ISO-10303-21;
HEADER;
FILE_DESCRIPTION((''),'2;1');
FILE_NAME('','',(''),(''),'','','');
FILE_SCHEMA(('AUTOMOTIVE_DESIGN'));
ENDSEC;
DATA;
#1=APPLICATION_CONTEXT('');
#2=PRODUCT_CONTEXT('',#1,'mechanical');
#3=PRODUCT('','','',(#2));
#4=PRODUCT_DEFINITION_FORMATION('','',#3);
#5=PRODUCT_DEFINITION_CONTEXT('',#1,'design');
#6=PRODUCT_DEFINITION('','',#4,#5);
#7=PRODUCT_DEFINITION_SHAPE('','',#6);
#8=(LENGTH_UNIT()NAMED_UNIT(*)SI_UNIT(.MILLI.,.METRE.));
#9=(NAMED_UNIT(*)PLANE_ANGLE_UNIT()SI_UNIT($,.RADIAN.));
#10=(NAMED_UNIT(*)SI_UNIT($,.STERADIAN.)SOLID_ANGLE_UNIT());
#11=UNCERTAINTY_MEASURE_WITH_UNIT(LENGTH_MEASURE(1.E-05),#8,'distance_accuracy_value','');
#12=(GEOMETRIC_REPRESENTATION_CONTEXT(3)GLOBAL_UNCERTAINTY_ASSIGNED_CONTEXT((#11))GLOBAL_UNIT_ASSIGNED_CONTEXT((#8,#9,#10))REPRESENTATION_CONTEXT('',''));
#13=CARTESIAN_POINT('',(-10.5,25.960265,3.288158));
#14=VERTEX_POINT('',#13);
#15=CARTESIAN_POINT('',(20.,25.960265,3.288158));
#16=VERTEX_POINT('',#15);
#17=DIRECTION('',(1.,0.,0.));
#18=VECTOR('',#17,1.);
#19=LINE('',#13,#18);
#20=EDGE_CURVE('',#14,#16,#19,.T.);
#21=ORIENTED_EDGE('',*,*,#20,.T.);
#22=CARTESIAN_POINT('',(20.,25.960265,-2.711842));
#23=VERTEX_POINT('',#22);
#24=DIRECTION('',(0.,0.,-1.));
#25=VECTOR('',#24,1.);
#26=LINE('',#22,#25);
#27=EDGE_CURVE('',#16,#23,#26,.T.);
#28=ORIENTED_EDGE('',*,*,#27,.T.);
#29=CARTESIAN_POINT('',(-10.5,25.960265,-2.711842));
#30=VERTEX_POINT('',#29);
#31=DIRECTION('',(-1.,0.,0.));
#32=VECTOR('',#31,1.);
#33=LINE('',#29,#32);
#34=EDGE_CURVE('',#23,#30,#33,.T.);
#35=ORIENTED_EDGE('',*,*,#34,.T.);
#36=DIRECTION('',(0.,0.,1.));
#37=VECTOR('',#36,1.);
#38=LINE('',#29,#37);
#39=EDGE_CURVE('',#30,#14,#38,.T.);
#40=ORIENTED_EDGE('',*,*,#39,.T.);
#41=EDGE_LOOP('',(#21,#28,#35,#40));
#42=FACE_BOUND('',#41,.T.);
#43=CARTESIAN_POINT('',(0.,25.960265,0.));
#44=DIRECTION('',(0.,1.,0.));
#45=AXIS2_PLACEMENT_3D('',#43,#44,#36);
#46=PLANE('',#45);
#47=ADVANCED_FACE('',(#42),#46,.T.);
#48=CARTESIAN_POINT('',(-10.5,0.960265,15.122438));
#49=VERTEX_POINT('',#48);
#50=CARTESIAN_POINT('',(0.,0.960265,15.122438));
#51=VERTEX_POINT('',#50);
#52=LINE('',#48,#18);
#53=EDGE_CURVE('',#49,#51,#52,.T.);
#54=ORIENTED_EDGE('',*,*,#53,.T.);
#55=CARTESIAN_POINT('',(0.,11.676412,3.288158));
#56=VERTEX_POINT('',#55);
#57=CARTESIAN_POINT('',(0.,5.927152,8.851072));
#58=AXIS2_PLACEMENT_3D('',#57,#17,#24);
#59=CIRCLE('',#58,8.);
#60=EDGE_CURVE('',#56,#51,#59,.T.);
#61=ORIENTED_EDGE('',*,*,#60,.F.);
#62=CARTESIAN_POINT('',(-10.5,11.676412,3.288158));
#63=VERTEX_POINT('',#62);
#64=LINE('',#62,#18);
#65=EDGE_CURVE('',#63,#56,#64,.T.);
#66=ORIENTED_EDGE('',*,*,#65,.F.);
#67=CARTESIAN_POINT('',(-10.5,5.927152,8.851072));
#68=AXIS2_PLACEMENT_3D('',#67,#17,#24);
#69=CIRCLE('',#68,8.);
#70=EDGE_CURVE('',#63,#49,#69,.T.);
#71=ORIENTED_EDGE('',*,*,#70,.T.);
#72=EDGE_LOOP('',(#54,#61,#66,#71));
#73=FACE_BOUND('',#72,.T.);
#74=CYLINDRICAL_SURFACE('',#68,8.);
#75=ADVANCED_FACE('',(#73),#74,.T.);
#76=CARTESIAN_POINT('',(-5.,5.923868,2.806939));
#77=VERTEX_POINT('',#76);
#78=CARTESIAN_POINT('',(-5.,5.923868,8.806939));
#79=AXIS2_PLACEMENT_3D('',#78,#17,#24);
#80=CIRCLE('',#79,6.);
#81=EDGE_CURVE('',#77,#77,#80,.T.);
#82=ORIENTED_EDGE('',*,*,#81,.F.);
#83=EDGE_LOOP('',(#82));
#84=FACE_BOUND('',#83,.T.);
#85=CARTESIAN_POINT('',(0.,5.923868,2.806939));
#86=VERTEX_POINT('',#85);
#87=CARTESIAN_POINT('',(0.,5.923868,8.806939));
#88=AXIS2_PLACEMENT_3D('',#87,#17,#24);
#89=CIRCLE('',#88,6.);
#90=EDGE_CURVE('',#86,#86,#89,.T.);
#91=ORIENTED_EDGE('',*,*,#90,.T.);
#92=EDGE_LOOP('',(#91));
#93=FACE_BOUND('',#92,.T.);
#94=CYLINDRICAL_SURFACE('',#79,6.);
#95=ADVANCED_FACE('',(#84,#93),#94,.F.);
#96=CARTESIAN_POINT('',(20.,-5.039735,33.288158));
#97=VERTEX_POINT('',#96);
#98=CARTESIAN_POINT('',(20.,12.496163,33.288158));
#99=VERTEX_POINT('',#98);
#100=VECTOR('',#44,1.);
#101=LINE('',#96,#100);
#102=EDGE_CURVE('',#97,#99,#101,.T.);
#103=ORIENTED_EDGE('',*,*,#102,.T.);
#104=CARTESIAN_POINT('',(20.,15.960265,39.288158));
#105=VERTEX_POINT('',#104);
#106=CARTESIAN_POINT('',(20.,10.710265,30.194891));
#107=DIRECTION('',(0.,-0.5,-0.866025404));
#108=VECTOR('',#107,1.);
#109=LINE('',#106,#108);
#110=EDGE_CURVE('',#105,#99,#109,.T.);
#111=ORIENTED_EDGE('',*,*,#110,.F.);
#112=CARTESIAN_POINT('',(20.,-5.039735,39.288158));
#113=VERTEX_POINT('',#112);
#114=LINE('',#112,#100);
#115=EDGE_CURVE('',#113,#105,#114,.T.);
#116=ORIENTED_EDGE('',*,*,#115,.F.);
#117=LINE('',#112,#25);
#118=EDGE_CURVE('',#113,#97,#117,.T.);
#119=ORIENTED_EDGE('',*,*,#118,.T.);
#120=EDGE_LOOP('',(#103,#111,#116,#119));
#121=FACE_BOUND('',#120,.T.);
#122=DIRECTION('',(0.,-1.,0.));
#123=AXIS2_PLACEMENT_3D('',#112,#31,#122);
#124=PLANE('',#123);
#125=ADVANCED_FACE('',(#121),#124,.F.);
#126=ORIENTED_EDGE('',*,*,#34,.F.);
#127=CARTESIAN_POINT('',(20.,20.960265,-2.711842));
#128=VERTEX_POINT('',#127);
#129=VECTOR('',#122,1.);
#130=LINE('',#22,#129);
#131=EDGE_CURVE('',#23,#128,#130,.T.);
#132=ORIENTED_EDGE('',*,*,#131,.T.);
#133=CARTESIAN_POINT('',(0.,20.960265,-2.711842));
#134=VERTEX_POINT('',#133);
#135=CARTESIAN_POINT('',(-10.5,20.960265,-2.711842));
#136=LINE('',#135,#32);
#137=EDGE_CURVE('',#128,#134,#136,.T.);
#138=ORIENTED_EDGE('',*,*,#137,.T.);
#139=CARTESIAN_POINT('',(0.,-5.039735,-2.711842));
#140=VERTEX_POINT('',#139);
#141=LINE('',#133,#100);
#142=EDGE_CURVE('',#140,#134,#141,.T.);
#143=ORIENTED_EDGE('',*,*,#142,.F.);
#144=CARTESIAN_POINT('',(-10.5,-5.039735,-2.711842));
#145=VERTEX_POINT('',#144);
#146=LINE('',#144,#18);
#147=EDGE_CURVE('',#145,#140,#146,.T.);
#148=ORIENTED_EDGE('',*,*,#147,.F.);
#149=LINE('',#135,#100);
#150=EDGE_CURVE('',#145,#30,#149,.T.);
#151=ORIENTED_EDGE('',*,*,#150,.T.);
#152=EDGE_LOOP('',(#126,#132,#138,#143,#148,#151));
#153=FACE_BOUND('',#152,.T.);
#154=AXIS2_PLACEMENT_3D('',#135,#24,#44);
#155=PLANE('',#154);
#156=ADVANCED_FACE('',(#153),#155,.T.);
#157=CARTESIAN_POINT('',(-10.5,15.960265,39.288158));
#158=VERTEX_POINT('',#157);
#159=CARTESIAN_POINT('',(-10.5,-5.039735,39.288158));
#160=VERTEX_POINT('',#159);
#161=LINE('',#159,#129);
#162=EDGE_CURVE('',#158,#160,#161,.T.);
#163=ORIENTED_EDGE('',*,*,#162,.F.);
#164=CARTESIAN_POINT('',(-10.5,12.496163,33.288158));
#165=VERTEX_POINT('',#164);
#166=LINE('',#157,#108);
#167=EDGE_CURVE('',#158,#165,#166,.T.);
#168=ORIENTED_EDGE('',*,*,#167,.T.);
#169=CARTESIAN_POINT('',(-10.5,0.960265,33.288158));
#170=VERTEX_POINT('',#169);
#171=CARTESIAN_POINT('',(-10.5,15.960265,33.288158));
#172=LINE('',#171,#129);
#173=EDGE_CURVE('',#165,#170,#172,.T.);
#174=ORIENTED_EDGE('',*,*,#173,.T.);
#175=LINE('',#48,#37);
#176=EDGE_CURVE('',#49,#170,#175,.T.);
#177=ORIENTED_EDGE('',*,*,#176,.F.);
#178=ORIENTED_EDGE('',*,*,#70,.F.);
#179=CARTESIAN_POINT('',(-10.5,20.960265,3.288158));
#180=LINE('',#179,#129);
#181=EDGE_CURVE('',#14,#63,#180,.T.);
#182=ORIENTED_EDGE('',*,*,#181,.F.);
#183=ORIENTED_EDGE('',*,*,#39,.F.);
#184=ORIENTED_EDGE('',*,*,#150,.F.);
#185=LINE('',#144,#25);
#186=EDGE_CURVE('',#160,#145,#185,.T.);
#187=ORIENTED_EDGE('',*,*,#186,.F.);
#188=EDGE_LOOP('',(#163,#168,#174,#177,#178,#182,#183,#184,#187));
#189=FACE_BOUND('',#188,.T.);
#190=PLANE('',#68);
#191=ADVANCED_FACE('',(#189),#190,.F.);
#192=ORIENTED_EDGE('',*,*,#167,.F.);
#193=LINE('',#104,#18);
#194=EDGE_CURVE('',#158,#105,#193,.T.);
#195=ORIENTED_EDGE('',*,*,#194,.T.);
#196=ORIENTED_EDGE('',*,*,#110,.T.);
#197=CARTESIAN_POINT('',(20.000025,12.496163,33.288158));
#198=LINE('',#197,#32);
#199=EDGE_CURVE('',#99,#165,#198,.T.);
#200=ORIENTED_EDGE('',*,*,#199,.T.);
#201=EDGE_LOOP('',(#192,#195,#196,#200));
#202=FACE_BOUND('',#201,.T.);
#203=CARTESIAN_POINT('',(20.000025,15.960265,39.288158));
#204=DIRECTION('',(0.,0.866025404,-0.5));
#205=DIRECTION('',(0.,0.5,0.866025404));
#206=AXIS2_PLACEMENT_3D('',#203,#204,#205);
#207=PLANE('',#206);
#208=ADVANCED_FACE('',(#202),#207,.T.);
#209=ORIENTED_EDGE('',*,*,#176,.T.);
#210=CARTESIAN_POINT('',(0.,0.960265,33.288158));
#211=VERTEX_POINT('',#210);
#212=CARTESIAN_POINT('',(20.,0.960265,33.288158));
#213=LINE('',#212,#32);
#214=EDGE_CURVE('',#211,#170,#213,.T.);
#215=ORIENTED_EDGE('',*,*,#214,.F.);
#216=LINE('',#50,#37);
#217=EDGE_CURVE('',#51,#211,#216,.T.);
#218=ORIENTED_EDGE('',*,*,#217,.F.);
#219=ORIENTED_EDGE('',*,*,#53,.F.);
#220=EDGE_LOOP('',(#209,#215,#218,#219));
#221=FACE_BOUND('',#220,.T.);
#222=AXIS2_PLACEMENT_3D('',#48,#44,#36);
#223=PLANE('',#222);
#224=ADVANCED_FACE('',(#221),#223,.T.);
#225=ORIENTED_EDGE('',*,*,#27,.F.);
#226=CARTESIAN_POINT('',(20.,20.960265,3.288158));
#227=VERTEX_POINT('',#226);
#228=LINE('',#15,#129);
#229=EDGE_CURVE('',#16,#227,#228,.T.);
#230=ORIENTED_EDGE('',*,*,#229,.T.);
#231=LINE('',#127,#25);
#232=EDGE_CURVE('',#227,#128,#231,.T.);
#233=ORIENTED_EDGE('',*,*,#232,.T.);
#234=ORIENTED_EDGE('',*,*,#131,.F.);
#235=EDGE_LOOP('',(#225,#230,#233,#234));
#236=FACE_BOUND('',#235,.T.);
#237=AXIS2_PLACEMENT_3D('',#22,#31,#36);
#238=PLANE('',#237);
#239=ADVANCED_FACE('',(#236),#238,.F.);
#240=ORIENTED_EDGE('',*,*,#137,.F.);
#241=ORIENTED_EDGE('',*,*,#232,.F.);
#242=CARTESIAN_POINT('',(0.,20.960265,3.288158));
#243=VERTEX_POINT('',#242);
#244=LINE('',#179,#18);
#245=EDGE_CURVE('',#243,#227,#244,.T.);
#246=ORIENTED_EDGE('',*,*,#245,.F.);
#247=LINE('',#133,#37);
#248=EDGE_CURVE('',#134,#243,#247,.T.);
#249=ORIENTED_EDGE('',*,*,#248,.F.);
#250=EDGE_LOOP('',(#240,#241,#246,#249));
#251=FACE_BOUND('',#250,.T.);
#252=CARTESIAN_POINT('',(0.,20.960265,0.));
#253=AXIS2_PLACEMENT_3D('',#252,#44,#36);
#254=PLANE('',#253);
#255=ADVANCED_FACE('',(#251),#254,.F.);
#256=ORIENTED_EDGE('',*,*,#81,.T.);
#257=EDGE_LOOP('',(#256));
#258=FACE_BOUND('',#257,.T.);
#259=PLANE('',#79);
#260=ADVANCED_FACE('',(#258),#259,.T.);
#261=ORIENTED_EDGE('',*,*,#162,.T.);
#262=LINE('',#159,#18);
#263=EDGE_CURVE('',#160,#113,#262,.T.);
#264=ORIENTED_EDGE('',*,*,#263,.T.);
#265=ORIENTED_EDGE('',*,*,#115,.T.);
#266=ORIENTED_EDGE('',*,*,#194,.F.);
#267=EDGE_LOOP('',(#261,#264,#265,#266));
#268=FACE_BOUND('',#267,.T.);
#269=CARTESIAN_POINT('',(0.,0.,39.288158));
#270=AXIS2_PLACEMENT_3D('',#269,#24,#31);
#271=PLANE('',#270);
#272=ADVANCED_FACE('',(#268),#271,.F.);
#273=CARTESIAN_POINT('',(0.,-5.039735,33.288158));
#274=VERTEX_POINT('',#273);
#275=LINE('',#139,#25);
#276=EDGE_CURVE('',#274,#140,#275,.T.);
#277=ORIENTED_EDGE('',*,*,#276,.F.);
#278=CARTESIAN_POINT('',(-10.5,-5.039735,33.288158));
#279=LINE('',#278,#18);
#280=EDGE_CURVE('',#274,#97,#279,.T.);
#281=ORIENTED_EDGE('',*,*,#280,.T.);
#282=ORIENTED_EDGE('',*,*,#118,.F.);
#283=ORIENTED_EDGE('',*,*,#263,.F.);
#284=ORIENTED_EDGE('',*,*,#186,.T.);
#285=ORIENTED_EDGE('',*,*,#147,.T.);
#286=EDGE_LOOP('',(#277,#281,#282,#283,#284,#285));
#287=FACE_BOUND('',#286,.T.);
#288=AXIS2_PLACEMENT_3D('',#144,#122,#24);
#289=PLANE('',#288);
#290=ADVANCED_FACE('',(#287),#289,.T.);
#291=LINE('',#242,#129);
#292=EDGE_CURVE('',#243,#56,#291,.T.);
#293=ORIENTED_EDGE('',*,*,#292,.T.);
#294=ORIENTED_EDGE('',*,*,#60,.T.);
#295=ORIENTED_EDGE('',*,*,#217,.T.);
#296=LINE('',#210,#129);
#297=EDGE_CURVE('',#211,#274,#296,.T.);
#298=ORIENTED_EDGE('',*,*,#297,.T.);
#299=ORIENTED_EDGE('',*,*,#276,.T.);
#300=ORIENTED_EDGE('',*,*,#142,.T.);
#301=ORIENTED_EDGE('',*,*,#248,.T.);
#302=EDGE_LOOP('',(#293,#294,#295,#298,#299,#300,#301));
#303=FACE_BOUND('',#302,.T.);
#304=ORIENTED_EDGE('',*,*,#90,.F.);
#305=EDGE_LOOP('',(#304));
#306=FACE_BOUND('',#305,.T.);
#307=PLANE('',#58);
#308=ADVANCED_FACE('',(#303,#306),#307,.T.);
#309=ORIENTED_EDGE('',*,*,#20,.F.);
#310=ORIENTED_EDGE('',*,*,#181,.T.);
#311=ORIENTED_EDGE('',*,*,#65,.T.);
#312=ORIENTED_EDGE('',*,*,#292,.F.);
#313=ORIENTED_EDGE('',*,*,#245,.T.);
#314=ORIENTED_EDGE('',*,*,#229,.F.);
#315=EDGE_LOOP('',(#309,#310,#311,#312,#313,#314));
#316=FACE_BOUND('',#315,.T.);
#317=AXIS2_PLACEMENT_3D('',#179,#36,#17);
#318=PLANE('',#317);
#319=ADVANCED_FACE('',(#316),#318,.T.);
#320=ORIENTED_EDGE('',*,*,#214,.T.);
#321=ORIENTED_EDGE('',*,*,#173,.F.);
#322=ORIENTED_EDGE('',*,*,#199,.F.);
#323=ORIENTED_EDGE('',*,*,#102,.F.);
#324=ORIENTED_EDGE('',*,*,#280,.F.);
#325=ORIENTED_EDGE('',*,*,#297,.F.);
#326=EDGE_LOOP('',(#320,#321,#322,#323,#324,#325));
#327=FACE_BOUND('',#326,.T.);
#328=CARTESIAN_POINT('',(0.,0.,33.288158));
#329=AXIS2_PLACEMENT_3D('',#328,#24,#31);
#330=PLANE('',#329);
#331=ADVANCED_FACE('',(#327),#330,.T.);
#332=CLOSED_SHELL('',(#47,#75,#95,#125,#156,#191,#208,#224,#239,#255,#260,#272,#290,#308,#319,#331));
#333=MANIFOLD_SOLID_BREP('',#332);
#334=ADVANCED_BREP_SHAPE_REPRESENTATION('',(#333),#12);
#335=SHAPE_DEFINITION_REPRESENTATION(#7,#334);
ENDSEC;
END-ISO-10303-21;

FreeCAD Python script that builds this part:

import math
import FreeCAD as App
import Part
import Sketcher

V = App.Vector
Q = App.Units.Quantity


def add_polygon(sketch, points):
    """Adds a closed chain of lines whose ends are joined by coincident constraints."""
    first, n = sketch.GeometryCount, len(points)
    for a, b in zip(points, points[1:] + points[:1]):
        sketch.addGeometry(Part.LineSegment(App.Vector(*a, 0), App.Vector(*b, 0)), False)
    for i in range(n):
        sketch.addConstraint(Sketcher.Constraint("Coincident", first + i, 2, first + (i + 1) % n, 1))

doc = App.newDocument("Part")
body = doc.addObject("PartDesign::Body", "Body")

# Sketch on YZ plane
sketch1 = body.newObject("Sketcher::SketchObject", "Sketch")
sketch1.AttachmentSupport = (doc.getObject("YZ_Plane"), [""])
sketch1.MapMode = "FlatFace"
sketch1.addGeometry(Part.LineSegment(V(21, -3, 0), V(21, 3, 0)), False)
sketch1.addGeometry(Part.LineSegment(V(21, 3, 0), V(12, 3, 0)), False)
sketch1.addGeometry(Part.ArcOfCircle(Part.Circle(V(6, 9, 0), V(0, 0, 1), 8), math.radians(-44), math.radians(128)), False)
sketch1.addGeometry(Part.LineSegment(V(1, 15, 0), V(1, 33, 0)), False)
sketch1.addGeometry(Part.LineSegment(V(1, 33, 0), V(-5, 33, 0)), False)
sketch1.addGeometry(Part.LineSegment(V(-5, 33, 0), V(-5, -3, 0)), False)
sketch1.addGeometry(Part.LineSegment(V(-5, -3, 0), V(21, -3, 0)), False)
sketch1.addConstraint(Sketcher.Constraint("Coincident", 0, 2, 1, 1))
sketch1.addConstraint(Sketcher.Constraint("Coincident", 1, 2, 2, 1))
sketch1.addConstraint(Sketcher.Constraint("Coincident", 2, 2, 3, 1))
sketch1.addConstraint(Sketcher.Constraint("Coincident", 3, 2, 4, 1))
sketch1.addConstraint(Sketcher.Constraint("Coincident", 4, 2, 5, 1))
sketch1.addConstraint(Sketcher.Constraint("Coincident", 5, 2, 6, 1))
sketch1.addConstraint(Sketcher.Constraint("Coincident", 6, 2, 0, 1))
sketch1.addConstraint(Sketcher.Constraint("Vertical", 0))
sketch1.addConstraint(Sketcher.Constraint("Horizontal", 1))
sketch1.addConstraint(Sketcher.Constraint("Vertical", 3))
sketch1.addConstraint(Sketcher.Constraint("Horizontal", 4))
sketch1.addConstraint(Sketcher.Constraint("Vertical", 5))
sketch1.addConstraint(Sketcher.Constraint("Horizontal", 6))
sketch1.addConstraint(Sketcher.Constraint("Equal", 4, 0))
sketch1.addConstraint(Sketcher.Constraint("Radius", 2, 8.0))
sketch1.addConstraint(Sketcher.Constraint("DistanceX", 4, 2, 4, 1, 6.0))
sketch1.addConstraint(Sketcher.Constraint("DistanceX", 6, 1, 6, 2, 26.0))
sketch1.addConstraint(Sketcher.Constraint("DistanceY", 5, 2, 5, 1, 36.0))
sketch1.addConstraint(Sketcher.Constraint("DistanceY", 3, 1, 3, 2, 18.16572))
sketch1.addConstraint(Sketcher.Constraint("DistanceX", 1, 2, 1, 1, 9.283853))
sketch1.addConstraint(Sketcher.Constraint("DistanceY", -1, 1, 0, 2, 3.288158))
sketch1.addConstraint(Sketcher.Constraint("DistanceX", -1, 1, 2, 3, 5.927152))
pad1 = body.newObject("PartDesign::Pad", "Pad")
pad1.Profile = sketch1
pad1.Length = 10.5
pad1.Reversed = True

# Sketch on XZ plane
sketch2 = body.newObject("Sketcher::SketchObject", "Sketch001")
sketch2.AttachmentSupport = (doc.getObject("XZ_Plane"), [""])
sketch2.MapMode = "FlatFace"
sketch2.AttachmentOffset = App.Placement(V(0, 0, -20.960265), App.Rotation())
add_polygon(sketch2, [(-10, -3), (-10, 3), (20, 3), (20, -3)])  # lines 0-3
sketch2.addConstraint(Sketcher.Constraint("Vertical", 0))
sketch2.addConstraint(Sketcher.Constraint("Horizontal", 1))
sketch2.addConstraint(Sketcher.Constraint("Vertical", 2))
sketch2.addConstraint(Sketcher.Constraint("Horizontal", 3))
sketch2.addConstraint(Sketcher.Constraint("DistanceY", 0, 1, 0, 2, 6.0))
sketch2.addConstraint(Sketcher.Constraint("DistanceX", 1, 1, 1, 2, 30.5))
sketch2.addConstraint(Sketcher.Constraint("DistanceX", -1, 1, 1, 2, 20.0))
sketch2.addConstraint(Sketcher.Constraint("DistanceY", -1, 1, 0, 2, 3.288158))
pad2 = body.newObject("PartDesign::Pad", "Pad001")
pad2.Profile = sketch2
pad2.Length = 5
pad2.Reversed = True

# Sketch on XY plane
sketch3 = body.newObject("Sketcher::SketchObject", "Sketch002")
sketch3.AttachmentSupport = (doc.getObject("XY_Plane"), [""])
sketch3.MapMode = "FlatFace"
sketch3.AttachmentOffset = App.Placement(V(0, 0, 33.288158), App.Rotation())
add_polygon(sketch3, [(-10, 1), (-10, -5), (20, -5), (20, 1)])  # lines 0-3
sketch3.addConstraint(Sketcher.Constraint("Vertical", 0))
sketch3.addConstraint(Sketcher.Constraint("Horizontal", 1))
sketch3.addConstraint(Sketcher.Constraint("Vertical", 2))
sketch3.addConstraint(Sketcher.Constraint("Horizontal", 3))
sketch3.addConstraint(Sketcher.Constraint("DistanceY", 0, 2, 0, 1, 6.0))
sketch3.addConstraint(Sketcher.Constraint("DistanceX", 1, 1, 1, 2, 30.5))
sketch3.addConstraint(Sketcher.Constraint("DistanceX", -1, 1, 1, 2, 20.0))
sketch3.addConstraint(Sketcher.Constraint("DistanceY", 0, 2, -1, 1, 5.039735))
pad3 = body.newObject("PartDesign::Pad", "Pad002")
pad3.Profile = sketch3
pad3.Length = 6

# Sketch on YZ plane
sketch4 = body.newObject("Sketcher::SketchObject", "Sketch003")
sketch4.AttachmentSupport = (doc.getObject("YZ_Plane"), [""])
sketch4.MapMode = "FlatFace"
sketch4.addGeometry(Part.Circle(V(6, 9, 0), V(0, 0, 1), 6), False)
sketch4.addConstraint(Sketcher.Constraint("Diameter", 0, 12.0))
sketch4.addConstraint(Sketcher.Constraint("DistanceY", -1, 1, 0, 3, 8.806939))
sketch4.addConstraint(Sketcher.Constraint("DistanceX", -1, 1, 0, 3, 5.923868))
pocket1 = body.newObject("PartDesign::Pocket", "Pocket")
pocket1.Profile = sketch4
pocket1.Length = 5

# Sketch on XZ plane
sketch5 = body.newObject("Sketcher::SketchObject", "Sketch004")
sketch5.AttachmentSupport = (doc.getObject("XZ_Plane"), [""])
sketch5.MapMode = "FlatFace"
sketch5.AttachmentOffset = App.Placement(V(0, 0, -0.960265), App.Rotation())
add_polygon(sketch5, [(-10, 33), (-10, 39), (20, 39), (20, 33)])  # lines 0-3
sketch5.addConstraint(Sketcher.Constraint("Vertical", 0))
sketch5.addConstraint(Sketcher.Constraint("Horizontal", 1))
sketch5.addConstraint(Sketcher.Constraint("Vertical", 2))
sketch5.addConstraint(Sketcher.Constraint("Horizontal", 3))
sketch5.addConstraint(Sketcher.Constraint("DistanceY", 0, 1, 0, 2, 6.0))
sketch5.addConstraint(Sketcher.Constraint("DistanceX", 1, 1, 1, 2, 30.5))
sketch5.addConstraint(Sketcher.Constraint("DistanceX", -1, 1, 1, 2, 20.0))
sketch5.addConstraint(Sketcher.Constraint("DistanceY", -1, 1, 0, 2, 39.288158))
pad4 = body.newObject("PartDesign::Pad", "Pad003")
pad4.Profile = sketch5
pad4.Length = 15
pad4.Reversed = True

# Sketch on YZ plane
sketch6 = body.newObject("Sketcher::SketchObject", "Sketch005")
sketch6.AttachmentSupport = (doc.getObject("YZ_Plane"), [""])
sketch6.MapMode = "FlatFace"
sketch6.AttachmentOffset = App.Placement(V(0, 0, -10.5), App.Rotation())
add_polygon(sketch6, [(16, 39.3), (16, 33.3), (12.5, 33.3)])  # lines 0-2
sketch6.addConstraint(Sketcher.Constraint("Vertical", 0))
sketch6.addConstraint(Sketcher.Constraint("Horizontal", 1))
sketch6.addConstraint(Sketcher.Constraint("DistanceY", 0, 2, 0, 1, 6.0))
sketch6.addConstraint(Sketcher.Constraint("Angle", 2, Q("60 deg")))
sketch6.addConstraint(Sketcher.Constraint("DistanceY", -1, 1, 0, 2, 33.288158))
sketch6.addConstraint(Sketcher.Constraint("DistanceX", -1, 1, 0, 2, 15.960265))
pocket2 = body.newObject("PartDesign::Pocket", "Pocket001")
pocket2.Profile = sketch6
pocket2.Type = "ThroughAll"
pocket2.Reversed = True

doc.recompute()
